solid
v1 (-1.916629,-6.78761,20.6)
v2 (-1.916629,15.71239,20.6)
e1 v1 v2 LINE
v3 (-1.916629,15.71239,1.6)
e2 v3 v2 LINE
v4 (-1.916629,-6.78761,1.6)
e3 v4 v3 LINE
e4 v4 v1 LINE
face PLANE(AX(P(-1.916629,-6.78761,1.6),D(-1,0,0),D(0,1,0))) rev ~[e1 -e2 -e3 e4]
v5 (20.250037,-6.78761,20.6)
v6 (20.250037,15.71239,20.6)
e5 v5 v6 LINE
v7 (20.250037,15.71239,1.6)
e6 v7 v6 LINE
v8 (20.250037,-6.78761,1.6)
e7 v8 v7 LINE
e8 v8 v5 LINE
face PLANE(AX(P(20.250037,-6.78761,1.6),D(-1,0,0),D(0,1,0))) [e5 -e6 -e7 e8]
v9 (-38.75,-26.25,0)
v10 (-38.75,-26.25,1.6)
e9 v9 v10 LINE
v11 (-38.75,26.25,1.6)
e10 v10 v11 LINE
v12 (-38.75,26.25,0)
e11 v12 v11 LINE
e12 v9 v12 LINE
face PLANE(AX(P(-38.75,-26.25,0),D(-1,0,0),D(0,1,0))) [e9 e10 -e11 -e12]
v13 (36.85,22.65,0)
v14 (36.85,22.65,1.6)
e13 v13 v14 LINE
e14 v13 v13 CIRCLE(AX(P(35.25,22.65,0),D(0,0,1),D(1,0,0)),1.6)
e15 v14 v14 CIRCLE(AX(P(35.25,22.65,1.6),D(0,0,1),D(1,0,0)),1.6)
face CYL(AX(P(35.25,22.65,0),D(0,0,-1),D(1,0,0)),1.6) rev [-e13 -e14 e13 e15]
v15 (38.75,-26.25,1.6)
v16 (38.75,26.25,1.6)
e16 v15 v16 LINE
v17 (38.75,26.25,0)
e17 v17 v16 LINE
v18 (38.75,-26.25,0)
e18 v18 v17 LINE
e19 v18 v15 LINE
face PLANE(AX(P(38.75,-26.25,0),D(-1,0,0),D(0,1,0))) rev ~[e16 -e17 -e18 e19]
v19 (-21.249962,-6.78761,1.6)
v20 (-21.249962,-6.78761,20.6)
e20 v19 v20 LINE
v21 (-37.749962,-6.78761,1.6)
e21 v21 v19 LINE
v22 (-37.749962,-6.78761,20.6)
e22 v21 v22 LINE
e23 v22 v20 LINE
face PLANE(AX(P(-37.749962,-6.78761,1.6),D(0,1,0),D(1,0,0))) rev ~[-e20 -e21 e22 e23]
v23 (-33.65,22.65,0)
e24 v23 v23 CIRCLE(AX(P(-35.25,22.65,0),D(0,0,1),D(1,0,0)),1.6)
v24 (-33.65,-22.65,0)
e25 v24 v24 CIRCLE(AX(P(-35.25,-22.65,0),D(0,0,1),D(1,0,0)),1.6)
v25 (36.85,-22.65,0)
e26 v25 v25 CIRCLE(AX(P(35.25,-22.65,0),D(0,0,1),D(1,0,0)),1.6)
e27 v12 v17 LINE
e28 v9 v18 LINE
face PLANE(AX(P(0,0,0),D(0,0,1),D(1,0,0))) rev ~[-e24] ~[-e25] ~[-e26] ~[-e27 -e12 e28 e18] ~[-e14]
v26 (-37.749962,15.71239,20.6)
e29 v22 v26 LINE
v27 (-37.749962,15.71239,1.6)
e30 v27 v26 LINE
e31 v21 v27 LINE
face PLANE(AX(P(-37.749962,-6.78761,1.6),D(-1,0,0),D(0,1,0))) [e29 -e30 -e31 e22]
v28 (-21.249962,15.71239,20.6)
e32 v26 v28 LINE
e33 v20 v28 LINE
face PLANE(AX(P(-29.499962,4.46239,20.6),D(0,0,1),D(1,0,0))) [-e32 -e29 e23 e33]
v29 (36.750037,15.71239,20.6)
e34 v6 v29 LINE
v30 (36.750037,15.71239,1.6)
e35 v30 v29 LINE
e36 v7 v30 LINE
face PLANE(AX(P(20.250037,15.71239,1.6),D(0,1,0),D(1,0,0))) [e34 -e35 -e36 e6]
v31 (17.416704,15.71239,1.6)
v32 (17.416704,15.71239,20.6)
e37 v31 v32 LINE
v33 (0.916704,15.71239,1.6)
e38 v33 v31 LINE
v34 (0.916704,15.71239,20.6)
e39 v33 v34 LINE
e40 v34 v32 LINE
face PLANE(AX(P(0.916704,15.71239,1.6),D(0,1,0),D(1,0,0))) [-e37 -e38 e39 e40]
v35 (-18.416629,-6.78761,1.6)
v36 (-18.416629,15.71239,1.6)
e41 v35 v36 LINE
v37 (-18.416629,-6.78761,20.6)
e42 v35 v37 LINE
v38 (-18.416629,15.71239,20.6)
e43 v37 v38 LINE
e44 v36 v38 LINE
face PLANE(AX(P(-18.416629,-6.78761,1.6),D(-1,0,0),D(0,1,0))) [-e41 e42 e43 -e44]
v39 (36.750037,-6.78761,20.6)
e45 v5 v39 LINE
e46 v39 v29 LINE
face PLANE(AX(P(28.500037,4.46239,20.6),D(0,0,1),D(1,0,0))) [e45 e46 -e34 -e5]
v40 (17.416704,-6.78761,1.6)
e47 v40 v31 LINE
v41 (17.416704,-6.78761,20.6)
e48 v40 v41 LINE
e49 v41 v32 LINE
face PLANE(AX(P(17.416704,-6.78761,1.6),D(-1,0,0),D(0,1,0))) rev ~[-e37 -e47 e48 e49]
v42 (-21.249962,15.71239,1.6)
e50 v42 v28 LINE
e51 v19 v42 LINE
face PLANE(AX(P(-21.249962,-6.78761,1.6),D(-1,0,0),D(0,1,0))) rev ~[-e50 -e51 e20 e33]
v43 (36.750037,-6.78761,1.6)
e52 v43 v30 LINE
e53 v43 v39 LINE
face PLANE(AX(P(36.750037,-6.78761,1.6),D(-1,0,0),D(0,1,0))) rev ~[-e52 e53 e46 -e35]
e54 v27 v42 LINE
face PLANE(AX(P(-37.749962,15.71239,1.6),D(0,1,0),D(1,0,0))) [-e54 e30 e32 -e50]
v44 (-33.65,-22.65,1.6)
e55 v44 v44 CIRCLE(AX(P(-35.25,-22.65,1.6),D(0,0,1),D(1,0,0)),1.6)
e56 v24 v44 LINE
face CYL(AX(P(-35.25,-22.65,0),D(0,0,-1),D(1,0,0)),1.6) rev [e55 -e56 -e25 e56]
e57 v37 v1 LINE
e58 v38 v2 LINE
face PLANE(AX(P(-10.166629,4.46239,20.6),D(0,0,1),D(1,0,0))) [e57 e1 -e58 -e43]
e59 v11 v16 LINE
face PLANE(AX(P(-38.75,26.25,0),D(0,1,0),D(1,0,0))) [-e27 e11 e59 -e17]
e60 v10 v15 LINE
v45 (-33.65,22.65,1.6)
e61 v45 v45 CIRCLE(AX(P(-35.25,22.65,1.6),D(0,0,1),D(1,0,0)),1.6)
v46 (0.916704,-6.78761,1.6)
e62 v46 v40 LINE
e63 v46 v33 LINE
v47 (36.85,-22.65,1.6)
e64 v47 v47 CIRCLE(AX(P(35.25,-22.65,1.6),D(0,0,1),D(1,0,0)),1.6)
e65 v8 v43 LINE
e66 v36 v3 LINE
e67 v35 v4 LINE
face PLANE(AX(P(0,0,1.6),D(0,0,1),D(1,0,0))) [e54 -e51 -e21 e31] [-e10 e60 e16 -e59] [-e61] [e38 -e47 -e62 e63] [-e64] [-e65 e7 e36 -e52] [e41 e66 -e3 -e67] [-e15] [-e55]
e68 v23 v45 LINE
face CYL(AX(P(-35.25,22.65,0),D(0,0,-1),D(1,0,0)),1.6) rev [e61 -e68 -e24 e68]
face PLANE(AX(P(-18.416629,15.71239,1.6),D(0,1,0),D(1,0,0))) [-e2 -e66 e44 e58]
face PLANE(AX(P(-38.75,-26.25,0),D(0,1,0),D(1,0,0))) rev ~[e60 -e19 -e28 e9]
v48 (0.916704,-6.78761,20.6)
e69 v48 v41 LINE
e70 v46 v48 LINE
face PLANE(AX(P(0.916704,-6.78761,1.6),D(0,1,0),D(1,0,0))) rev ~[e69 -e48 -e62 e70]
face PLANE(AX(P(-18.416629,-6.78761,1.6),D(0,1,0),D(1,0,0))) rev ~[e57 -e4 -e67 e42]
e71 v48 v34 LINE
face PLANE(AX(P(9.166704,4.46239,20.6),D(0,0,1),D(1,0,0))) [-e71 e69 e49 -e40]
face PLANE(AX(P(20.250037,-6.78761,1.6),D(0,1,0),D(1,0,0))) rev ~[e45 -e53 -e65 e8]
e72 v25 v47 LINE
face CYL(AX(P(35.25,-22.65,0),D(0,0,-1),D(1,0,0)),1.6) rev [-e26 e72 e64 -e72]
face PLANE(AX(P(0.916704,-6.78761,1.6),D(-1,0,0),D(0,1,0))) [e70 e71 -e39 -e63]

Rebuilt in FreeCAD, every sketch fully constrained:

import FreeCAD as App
import Part
import Sketcher
from FreeCAD import Vector
Q = App.Units.Quantity

doc = App.newDocument("Part")
body = doc.addObject("PartDesign::Body", "Body")

sketch1 = doc.addObject("Sketcher::SketchObject", "Sketch")
body.addObject(sketch1)
sketch1.AttachmentSupport = (doc.XY_Plane, [""])
sketch1.MapMode = "FlatFace"
sketch1.addGeometry([
    Part.LineSegment(Vector(-38.8, 26.2, 0), Vector(-38.8, -26.2, 0)),
    Part.LineSegment(Vector(-38.8, -26.2, 0), Vector(38.8, -26.2, 0)),
    Part.LineSegment(Vector(38.8, -26.2, 0), Vector(38.8, 26.2, 0)),
    Part.LineSegment(Vector(38.8, 26.2, 0), Vector(-38.8, 26.2, 0)),
    Part.Circle(Vector(-35.2, -22.6, 0), Vector(0, 0, 1), 1.6),
    Part.Circle(Vector(35.2, -22.6, 0), Vector(0, 0, 1), 1.6),
    Part.Circle(Vector(-35.2, 22.6, 0), Vector(0, 0, 1), 1.6),
    Part.Circle(Vector(35.2, 22.6, 0), Vector(0, 0, 1), 1.6),
], False)
sketch1.addConstraint([
    Sketcher.Constraint("Coincident", 0, 2, 1, 1),
    Sketcher.Constraint("Coincident", 1, 2, 2, 1),
    Sketcher.Constraint("Coincident", 2, 2, 3, 1),
    Sketcher.Constraint("Coincident", 3, 2, 0, 1),
    Sketcher.Constraint("Vertical", 0),
    Sketcher.Constraint("Horizontal", 1),
    Sketcher.Constraint("Vertical", 2),
    Sketcher.Constraint("Horizontal", 3),
    Sketcher.Constraint("Equal", 4, 5),
    Sketcher.Constraint("Equal", 5, 6),
    Sketcher.Constraint("Equal", 6, 7),
    Sketcher.Constraint("Symmetric", 5, 3, 6, 3, -1, 1),
    Sketcher.Constraint("Symmetric", 4, 3, 7, 3, -1, 1),
    Sketcher.Constraint("Symmetric", 0, 2, 2, 2, -1, 1),
    Sketcher.Constraint("Symmetric", 4, 3, 5, 3, -2),
    Sketcher.Constraint("Diameter", 4, Q("3.2 mm")),
    Sketcher.Constraint("DistanceX", 1, 1, 1, 2, Q("77.5 mm")),
    Sketcher.Constraint("DistanceY", 0, 2, 0, 1, Q("52.5 mm")),
    Sketcher.Constraint("DistanceX", 0, 2, 5, 3, Q("74 mm")),
    Sketcher.Constraint("DistanceY", 4, 3, 6, 3, Q("45.3 mm")),
])
pad1 = doc.addObject("PartDesign::Pad", "Pad")
body.addObject(pad1)
pad1.Profile = sketch1
pad1.Length = 1.6

sketch2 = doc.addObject("Sketcher::SketchObject", "Sketch001")
body.addObject(sketch2)
sketch2.AttachmentSupport = (doc.XY_Plane, [""])
sketch2.MapMode = "FlatFace"
sketch2.AttachmentOffset = App.Placement(Vector(0, 0, 1.6), App.Rotation())
sketch2.addGeometry([
    Part.LineSegment(Vector(-38, 16, 0), Vector(-38, -7, 0)),
    Part.LineSegment(Vector(-38, -7, 0), Vector(-21, -7, 0)),
    Part.LineSegment(Vector(-21, -7, 0), Vector(-21, 16, 0)),
    Part.LineSegment(Vector(-21, 16, 0), Vector(-38, 16, 0)),
], False)
sketch2.addConstraint([
    Sketcher.Constraint("Coincident", 0, 2, 1, 1),
    Sketcher.Constraint("Coincident", 1, 2, 2, 1),
    Sketcher.Constraint("Coincident", 2, 2, 3, 1),
    Sketcher.Constraint("Coincident", 3, 2, 0, 1),
    Sketcher.Constraint("Vertical", 0),
    Sketcher.Constraint("Horizontal", 1),
    Sketcher.Constraint("Vertical", 2),
    Sketcher.Constraint("Horizontal", 3),
    Sketcher.Constraint("DistanceX", 1, 1, 1, 2, Q("16.5 mm")),
    Sketcher.Constraint("DistanceY", 0, 2, 0, 1, Q("22.5 mm")),
    Sketcher.Constraint("DistanceX", 0, 2, -1, 1, Q("37.749962 mm")),
    Sketcher.Constraint("DistanceY", 0, 2, -1, 1, Q("6.78761 mm")),
])
pad2 = doc.addObject("PartDesign::Pad", "Pad001")
body.addObject(pad2)
pad2.Profile = sketch2
pad2.Length = 19
doc.recompute()

linearpattern = doc.addObject("PartDesign::LinearPattern", "LinearPattern")
body.addObject(linearpattern)
linearpattern.Originals = [pad2]
linearpattern.Direction = (doc.X_Axis, [""])
linearpattern.Mode = "offset"
linearpattern.Offset = 19.333333
linearpattern.Occurrences = 4
body.Tip = linearpattern

doc.recompute()
